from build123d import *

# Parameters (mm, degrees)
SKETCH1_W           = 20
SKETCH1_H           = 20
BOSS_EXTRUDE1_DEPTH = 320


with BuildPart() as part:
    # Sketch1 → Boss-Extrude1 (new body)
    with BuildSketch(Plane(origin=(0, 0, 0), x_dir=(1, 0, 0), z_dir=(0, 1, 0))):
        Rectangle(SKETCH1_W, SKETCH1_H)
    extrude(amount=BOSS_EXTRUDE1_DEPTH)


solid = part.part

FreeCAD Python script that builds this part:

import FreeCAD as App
import Part
import Sketcher
from FreeCAD import Vector

doc = App.newDocument("Part")
params = doc.addObject("Spreadsheet::Sheet", "Params")
for row, (alias, value) in enumerate([
    ("sketch1_width", "20 mm"),
    ("pad1_length", "320 mm"),
], start=1):
    params.set(f"A{row}", alias)
    params.set(f"B{row}", "=" + value)
    params.setAlias(f"B{row}", alias)

body = doc.addObject("PartDesign::Body", "Body")

sketch1 = doc.addObject("Sketcher::SketchObject", "Sketch")
body.addObject(sketch1)
sketch1.AttachmentSupport = (doc.XZ_Plane, [""])
sketch1.MapMode = "FlatFace"
sketch1.addGeometry(Part.LineSegment(Vector(-10, -10, 0), Vector(-10, 10, 0)), False)
sketch1.addGeometry(Part.LineSegment(Vector(-10, 10, 0), Vector(10, 10, 0)), False)
sketch1.addGeometry(Part.LineSegment(Vector(10, 10, 0), Vector(10, -10, 0)), False)
sketch1.addGeometry(Part.LineSegment(Vector(10, -10, 0), Vector(-10, -10, 0)), False)
sketch1.addConstraint(Sketcher.Constraint("Coincident", 0, 2, 1, 1))
sketch1.addConstraint(Sketcher.Constraint("Coincident", 1, 2, 2, 1))
sketch1.addConstraint(Sketcher.Constraint("Coincident", 2, 2, 3, 1))
sketch1.addConstraint(Sketcher.Constraint("Coincident", 3, 2, 0, 1))
sketch1.addConstraint(Sketcher.Constraint("Vertical", 0))
sketch1.addConstraint(Sketcher.Constraint("Horizontal", 1))
sketch1.addConstraint(Sketcher.Constraint("Vertical", 2))
sketch1.addConstraint(Sketcher.Constraint("Horizontal", 3))
sketch1.addConstraint(Sketcher.Constraint("Symmetric", 0, 2, 2, 2, -1, 1))
sketch1.addConstraint(Sketcher.Constraint("Equal", 3, 0))
sketch1.addConstraint(Sketcher.Constraint("DistanceX", 1, 1, 1, 2, 20.0))
sketch1.setExpression("Constraints[10]", "Params.sketch1_width")
pad1 = doc.addObject("PartDesign::Pad", "Pad")
body.addObject(pad1)
pad1.Profile = sketch1
pad1.setExpression("Length", "Params.pad1_length")
pad1.Reversed = True

doc.recompute()
